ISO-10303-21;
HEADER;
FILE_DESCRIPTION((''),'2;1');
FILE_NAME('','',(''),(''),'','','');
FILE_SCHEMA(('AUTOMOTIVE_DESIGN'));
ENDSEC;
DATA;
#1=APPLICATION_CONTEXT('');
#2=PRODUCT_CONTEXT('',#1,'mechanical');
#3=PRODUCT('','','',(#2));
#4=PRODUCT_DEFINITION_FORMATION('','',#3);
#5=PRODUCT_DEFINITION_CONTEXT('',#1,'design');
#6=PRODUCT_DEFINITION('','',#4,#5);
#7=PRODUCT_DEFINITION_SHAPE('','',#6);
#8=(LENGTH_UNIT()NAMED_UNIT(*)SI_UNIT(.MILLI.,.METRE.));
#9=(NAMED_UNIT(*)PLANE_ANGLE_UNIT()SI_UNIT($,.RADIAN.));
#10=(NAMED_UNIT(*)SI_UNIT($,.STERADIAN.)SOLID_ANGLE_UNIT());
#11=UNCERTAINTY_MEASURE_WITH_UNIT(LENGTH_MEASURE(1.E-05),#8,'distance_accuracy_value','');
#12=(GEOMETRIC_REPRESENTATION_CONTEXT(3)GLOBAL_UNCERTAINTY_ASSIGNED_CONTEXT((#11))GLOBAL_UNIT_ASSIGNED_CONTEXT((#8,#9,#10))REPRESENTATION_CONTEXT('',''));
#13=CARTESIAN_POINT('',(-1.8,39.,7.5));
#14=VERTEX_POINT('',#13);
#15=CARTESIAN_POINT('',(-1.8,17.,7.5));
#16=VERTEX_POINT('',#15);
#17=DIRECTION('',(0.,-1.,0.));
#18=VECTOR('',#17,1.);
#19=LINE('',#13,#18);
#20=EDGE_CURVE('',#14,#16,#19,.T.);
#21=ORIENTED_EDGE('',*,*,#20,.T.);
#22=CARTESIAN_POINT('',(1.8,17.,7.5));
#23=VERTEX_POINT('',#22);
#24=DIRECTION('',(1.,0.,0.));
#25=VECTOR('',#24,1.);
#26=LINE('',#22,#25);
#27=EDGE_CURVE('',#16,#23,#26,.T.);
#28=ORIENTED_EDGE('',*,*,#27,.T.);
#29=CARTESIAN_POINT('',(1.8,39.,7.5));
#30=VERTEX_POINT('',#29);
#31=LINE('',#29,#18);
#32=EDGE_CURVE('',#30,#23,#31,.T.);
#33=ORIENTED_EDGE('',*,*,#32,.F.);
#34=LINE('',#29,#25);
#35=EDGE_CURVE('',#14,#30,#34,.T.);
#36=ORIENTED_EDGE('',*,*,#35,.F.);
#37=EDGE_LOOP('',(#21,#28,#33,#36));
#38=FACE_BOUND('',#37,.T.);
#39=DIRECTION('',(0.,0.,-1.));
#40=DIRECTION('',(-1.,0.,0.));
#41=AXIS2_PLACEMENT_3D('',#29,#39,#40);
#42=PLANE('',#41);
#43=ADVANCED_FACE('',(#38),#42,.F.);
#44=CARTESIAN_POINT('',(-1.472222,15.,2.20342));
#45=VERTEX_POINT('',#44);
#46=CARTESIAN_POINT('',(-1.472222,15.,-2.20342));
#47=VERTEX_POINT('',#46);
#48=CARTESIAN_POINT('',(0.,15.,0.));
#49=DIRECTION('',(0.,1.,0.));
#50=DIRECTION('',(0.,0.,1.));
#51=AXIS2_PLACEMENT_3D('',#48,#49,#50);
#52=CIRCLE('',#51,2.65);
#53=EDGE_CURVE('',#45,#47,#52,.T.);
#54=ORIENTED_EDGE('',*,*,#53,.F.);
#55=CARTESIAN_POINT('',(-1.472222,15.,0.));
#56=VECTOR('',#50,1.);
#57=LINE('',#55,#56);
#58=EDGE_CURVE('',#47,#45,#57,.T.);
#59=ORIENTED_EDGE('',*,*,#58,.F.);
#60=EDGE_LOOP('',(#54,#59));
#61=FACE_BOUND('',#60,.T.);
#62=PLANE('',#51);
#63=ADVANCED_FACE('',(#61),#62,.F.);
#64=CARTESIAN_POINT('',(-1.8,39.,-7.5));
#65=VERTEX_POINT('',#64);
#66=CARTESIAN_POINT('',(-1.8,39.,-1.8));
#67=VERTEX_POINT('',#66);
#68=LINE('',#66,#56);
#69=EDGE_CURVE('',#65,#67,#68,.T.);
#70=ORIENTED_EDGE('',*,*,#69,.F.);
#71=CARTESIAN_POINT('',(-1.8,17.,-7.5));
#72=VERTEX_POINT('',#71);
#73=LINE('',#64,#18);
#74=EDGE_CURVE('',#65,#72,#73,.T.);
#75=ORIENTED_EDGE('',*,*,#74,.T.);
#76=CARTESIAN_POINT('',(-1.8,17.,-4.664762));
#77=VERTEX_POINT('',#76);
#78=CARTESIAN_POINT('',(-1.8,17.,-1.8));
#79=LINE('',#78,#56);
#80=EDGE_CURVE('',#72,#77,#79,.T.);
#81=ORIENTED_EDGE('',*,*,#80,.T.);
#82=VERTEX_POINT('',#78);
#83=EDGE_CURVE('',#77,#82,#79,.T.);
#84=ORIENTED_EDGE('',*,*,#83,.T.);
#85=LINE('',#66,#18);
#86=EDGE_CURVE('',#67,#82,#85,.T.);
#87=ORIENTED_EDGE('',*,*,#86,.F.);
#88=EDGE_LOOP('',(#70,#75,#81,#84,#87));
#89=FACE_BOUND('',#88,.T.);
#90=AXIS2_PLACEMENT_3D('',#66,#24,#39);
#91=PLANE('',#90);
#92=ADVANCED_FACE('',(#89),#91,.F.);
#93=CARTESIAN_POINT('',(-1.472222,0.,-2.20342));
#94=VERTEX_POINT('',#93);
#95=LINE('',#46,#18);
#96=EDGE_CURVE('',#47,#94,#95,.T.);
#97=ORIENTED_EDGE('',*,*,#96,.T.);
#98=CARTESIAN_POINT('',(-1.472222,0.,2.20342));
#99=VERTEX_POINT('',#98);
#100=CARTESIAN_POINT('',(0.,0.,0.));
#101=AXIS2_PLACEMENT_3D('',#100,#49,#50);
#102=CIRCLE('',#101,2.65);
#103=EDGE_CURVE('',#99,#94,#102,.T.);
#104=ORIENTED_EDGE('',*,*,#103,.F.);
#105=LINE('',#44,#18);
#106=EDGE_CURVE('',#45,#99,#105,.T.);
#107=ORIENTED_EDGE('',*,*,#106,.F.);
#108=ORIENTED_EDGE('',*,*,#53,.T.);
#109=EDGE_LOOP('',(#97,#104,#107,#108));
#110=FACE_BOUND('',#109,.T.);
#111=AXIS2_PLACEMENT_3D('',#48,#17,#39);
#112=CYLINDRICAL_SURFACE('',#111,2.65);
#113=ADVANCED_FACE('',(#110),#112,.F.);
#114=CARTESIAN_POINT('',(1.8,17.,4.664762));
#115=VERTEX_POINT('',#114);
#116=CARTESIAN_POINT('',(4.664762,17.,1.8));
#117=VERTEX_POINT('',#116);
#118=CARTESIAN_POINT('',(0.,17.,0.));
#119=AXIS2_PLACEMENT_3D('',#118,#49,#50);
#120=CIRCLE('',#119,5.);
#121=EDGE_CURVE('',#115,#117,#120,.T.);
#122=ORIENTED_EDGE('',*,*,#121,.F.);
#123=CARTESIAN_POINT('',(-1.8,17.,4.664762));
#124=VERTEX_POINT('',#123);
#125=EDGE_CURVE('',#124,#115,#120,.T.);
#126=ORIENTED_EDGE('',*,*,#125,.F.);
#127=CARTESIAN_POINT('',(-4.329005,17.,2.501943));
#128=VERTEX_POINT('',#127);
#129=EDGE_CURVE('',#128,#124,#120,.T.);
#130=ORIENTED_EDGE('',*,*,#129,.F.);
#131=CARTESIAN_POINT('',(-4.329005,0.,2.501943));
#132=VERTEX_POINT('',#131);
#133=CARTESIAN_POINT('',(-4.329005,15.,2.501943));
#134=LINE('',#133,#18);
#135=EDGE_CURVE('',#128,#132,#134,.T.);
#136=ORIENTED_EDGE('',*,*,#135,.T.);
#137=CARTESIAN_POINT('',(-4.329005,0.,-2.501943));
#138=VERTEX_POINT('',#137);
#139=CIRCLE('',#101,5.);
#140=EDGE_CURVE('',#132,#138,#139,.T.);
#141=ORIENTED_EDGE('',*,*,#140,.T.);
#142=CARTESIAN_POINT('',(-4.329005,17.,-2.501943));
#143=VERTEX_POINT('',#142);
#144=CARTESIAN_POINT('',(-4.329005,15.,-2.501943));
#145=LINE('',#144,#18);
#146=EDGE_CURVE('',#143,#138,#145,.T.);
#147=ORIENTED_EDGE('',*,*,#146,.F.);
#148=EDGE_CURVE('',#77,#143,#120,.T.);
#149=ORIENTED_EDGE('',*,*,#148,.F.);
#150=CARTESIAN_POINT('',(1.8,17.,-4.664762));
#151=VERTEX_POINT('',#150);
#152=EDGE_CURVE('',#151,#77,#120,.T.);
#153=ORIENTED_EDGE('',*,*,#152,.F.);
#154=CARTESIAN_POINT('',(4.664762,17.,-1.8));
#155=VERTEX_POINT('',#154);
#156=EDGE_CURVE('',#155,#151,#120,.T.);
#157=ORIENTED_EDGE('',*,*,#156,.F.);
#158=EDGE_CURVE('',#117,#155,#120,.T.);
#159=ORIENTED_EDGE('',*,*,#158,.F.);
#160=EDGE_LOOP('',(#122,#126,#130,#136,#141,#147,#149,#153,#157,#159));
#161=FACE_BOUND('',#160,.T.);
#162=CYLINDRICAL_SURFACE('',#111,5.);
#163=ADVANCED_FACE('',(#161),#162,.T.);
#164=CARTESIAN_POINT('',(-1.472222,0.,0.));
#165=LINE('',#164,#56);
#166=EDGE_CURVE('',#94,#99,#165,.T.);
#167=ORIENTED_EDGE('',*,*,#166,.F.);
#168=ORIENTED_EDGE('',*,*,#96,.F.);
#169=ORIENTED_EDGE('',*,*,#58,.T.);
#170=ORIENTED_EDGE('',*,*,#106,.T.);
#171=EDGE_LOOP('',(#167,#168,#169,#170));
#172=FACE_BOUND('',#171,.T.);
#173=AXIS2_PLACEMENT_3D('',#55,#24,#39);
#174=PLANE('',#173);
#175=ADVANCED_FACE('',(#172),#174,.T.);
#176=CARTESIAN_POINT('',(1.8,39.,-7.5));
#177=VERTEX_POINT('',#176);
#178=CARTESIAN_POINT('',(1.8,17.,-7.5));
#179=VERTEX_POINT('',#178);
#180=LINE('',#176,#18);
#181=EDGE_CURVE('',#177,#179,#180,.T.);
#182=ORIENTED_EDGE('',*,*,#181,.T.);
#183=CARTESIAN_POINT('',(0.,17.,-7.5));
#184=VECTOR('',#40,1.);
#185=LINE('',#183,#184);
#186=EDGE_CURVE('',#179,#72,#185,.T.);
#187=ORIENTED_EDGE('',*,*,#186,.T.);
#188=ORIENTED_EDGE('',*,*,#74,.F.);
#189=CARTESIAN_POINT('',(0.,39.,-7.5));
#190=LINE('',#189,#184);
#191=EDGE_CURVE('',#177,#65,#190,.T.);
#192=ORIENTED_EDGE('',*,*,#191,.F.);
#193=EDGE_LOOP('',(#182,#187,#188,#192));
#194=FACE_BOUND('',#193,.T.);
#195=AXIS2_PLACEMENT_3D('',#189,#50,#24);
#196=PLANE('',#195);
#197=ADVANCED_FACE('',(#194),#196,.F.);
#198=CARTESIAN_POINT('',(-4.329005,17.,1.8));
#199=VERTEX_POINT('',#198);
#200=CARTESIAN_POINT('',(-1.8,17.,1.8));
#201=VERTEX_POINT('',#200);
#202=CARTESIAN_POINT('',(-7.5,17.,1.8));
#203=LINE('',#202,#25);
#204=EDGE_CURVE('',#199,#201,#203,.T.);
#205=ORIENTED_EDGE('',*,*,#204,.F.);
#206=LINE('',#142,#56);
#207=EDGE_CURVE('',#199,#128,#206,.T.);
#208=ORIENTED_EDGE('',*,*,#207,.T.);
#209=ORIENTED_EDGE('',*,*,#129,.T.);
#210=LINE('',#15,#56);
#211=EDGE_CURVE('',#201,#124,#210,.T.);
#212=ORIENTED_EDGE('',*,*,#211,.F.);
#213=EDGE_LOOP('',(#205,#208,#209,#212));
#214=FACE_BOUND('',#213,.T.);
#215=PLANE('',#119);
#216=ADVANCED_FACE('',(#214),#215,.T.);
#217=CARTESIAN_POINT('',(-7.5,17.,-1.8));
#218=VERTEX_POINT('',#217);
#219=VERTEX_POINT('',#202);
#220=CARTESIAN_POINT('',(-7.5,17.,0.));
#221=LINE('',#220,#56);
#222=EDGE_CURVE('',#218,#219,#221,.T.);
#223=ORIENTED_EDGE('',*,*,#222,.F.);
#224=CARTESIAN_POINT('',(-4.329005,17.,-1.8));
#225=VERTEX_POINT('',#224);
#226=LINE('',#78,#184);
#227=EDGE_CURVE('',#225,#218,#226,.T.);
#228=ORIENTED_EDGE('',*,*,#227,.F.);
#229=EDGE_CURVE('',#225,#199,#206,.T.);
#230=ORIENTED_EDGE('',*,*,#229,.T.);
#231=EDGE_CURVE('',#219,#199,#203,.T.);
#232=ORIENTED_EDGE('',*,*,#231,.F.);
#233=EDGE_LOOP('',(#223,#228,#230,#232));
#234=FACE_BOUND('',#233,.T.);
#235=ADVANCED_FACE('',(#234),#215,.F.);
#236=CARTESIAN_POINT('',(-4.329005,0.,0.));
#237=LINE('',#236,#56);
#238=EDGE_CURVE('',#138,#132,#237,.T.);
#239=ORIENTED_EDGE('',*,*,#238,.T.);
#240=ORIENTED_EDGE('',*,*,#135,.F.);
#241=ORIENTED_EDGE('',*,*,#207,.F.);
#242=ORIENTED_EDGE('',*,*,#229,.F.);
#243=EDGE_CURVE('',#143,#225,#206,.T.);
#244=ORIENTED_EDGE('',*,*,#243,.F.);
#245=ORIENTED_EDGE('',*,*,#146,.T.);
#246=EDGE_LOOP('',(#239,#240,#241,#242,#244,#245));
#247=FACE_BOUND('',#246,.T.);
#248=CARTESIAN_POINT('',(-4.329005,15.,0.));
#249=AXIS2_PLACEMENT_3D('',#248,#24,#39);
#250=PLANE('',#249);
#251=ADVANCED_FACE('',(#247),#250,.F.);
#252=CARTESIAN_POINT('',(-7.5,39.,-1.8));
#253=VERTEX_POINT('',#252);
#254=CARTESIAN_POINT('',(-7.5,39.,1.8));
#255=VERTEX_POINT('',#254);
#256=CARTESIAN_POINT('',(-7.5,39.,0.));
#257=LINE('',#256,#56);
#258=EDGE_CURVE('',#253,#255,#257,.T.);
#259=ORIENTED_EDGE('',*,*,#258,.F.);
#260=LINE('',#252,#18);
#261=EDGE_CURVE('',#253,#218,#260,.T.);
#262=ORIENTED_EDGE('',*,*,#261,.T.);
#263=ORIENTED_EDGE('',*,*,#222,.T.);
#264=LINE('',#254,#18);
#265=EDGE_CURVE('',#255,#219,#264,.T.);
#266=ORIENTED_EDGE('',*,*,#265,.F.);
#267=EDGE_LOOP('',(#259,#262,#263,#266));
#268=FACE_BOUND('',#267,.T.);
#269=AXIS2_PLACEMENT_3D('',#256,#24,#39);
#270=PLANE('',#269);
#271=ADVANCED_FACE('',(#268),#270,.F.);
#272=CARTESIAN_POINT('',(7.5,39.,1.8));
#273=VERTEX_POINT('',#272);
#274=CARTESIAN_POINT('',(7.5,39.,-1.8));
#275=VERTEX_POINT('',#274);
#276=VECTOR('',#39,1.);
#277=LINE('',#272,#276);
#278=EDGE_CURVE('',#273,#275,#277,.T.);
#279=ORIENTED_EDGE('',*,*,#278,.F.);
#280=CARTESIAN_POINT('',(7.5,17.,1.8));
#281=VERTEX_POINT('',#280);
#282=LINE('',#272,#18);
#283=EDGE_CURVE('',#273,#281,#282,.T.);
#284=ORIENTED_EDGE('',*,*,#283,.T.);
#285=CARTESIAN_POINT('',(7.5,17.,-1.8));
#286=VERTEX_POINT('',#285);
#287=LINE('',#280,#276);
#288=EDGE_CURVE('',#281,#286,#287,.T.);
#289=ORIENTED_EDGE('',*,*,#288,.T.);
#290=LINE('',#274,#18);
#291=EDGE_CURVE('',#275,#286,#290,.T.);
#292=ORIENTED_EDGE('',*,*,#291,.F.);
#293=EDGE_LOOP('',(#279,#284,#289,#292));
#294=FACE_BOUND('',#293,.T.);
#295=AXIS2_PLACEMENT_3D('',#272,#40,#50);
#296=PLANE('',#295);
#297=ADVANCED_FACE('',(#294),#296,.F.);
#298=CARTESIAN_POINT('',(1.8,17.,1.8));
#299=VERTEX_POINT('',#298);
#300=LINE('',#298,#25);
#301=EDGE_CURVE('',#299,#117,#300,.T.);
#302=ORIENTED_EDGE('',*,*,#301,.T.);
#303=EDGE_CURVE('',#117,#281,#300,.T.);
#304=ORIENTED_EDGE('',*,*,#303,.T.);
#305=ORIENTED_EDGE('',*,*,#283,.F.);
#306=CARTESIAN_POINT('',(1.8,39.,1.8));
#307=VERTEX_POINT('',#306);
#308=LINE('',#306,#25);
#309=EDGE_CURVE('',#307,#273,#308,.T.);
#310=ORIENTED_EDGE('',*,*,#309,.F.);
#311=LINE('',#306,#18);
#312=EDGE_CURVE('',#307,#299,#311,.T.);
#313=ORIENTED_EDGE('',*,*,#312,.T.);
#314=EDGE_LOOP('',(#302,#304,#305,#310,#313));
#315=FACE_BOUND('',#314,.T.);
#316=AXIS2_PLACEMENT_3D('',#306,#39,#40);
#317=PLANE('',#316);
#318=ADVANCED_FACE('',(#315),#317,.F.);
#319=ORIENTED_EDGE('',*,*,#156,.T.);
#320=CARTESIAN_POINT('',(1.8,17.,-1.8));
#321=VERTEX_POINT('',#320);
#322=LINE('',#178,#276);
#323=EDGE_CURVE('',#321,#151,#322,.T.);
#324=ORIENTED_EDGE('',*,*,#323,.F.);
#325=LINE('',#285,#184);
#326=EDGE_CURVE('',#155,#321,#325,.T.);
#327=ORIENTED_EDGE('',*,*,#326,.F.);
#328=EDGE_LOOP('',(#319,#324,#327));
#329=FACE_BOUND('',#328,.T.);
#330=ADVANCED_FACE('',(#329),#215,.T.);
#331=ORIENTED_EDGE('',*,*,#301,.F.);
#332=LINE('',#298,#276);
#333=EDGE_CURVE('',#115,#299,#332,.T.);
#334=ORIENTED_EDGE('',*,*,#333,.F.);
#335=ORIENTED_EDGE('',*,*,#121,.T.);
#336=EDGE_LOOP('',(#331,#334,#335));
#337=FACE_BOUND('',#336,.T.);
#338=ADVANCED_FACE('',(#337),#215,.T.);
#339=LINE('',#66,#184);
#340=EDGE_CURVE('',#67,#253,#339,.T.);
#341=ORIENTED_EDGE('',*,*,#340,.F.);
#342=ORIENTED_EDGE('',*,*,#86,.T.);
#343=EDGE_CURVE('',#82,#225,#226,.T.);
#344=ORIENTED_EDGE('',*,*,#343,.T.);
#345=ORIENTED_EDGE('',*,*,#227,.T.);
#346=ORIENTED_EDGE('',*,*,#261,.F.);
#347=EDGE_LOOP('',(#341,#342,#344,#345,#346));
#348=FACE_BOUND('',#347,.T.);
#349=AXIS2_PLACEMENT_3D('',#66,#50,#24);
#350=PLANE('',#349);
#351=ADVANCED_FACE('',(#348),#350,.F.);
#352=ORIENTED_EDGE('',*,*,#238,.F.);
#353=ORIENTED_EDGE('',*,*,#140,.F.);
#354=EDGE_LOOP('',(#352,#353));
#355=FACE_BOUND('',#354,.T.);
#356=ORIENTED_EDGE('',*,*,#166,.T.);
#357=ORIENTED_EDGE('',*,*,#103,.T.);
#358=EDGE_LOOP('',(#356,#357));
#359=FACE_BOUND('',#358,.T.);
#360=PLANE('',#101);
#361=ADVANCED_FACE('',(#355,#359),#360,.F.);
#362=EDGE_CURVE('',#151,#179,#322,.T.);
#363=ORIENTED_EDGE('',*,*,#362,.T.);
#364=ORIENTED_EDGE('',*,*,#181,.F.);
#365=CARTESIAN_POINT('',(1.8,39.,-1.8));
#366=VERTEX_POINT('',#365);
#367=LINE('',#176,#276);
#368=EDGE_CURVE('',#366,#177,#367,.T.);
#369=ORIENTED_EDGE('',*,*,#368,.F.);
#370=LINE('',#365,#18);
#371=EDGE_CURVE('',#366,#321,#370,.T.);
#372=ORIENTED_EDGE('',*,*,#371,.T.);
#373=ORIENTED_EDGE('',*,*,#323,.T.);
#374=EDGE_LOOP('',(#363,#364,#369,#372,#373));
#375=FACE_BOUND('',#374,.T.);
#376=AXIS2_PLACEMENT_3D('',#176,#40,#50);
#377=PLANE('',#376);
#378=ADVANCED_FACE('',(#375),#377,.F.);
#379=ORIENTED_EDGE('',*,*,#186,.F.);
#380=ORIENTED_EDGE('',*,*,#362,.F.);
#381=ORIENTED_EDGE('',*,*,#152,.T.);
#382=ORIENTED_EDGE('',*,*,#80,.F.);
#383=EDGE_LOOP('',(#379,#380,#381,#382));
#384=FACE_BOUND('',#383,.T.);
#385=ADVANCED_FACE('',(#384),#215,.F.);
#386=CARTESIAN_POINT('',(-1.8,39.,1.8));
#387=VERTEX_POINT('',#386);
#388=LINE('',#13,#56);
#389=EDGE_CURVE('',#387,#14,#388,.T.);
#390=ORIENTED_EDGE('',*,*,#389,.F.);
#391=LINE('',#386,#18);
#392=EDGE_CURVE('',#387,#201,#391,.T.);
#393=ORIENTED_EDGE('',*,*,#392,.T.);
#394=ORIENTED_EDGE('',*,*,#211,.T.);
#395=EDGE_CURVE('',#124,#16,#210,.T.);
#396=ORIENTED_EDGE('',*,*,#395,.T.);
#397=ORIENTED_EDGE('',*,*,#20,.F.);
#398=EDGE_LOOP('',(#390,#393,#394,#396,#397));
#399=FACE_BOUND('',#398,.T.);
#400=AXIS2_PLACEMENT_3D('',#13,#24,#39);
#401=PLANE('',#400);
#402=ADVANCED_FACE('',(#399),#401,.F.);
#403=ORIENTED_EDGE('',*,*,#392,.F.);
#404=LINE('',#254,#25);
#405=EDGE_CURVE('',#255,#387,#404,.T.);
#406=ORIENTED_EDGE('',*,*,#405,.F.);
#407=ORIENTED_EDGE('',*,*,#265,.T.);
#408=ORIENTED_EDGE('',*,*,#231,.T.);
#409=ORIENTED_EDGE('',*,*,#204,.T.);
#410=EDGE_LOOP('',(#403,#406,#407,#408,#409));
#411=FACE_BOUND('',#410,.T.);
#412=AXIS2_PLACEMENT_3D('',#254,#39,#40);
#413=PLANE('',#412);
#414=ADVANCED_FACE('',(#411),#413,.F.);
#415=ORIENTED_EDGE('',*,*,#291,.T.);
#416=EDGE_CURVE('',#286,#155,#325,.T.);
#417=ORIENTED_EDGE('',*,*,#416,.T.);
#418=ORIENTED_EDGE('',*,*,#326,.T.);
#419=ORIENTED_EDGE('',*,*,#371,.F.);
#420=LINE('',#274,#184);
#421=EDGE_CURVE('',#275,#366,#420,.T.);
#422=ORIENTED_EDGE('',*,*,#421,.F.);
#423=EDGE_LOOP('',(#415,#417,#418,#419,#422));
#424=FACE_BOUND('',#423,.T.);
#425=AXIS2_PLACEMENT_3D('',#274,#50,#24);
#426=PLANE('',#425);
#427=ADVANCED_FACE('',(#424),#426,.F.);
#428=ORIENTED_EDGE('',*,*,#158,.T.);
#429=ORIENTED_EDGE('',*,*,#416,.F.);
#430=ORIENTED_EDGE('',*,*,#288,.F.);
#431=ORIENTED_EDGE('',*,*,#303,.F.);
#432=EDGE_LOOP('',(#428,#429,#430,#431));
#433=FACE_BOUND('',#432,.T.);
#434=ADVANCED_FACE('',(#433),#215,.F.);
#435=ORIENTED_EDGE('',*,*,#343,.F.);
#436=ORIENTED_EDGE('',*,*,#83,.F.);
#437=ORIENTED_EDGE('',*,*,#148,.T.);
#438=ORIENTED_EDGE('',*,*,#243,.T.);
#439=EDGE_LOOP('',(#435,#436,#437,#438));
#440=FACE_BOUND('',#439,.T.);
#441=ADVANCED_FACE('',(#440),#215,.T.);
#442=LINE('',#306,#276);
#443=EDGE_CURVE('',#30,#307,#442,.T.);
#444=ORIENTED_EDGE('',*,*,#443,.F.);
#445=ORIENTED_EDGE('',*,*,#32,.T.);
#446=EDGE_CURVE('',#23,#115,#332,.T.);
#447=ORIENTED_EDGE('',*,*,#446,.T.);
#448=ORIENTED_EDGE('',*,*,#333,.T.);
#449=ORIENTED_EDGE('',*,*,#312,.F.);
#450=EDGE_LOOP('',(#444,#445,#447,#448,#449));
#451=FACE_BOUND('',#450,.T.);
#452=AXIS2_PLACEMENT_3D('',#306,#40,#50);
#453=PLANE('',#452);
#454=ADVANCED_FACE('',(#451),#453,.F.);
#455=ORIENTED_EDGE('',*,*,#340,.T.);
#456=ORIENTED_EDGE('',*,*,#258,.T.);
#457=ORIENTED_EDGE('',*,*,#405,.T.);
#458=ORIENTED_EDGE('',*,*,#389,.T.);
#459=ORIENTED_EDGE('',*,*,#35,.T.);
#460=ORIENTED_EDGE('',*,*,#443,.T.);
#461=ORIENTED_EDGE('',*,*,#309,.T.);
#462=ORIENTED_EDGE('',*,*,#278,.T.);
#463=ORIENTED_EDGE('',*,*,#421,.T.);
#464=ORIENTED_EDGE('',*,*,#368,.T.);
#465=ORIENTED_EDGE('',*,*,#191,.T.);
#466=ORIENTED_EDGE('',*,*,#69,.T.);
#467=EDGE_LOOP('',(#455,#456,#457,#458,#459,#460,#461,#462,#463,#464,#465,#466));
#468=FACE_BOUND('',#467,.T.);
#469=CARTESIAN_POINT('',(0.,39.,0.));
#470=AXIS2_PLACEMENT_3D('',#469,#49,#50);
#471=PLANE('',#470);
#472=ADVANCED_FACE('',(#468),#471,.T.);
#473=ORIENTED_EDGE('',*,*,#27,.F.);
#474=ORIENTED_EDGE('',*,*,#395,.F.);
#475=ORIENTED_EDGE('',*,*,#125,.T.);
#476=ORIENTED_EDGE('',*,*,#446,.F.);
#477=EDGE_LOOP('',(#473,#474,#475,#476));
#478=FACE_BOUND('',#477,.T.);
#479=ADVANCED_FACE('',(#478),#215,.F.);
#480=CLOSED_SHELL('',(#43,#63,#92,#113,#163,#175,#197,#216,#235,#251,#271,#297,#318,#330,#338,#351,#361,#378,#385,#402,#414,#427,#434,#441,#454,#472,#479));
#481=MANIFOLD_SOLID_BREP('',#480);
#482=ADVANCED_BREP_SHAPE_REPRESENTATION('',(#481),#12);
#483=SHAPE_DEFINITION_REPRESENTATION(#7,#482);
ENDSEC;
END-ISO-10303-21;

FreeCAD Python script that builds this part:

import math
import FreeCAD as App
import Part
import Sketcher


def add_polygon(sketch, points):
    """Adds a closed chain of lines whose ends are joined by coincident constraints."""
    first, n = sketch.GeometryCount, len(points)
    for a, b in zip(points, points[1:] + points[:1]):
        sketch.addGeometry(Part.LineSegment(App.Vector(*a, 0), App.Vector(*b, 0)), False)
    for i in range(n):
        sketch.addConstraint(Sketcher.Constraint("Coincident", first + i, 2, first + (i + 1) % n, 1))

doc = App.newDocument("Part")
body = doc.addObject("PartDesign::Body", "Body")

# Sketch on XZ plane
sketch1 = doc.addObject("Sketcher::SketchObject", "Sketch")
body.addObject(sketch1)
sketch1.AttachmentSupport = (doc.XZ_Plane, [""])
sketch1.MapMode = "FlatFace"
sketch1.addGeometry([
    Part.LineSegment(App.Vector(-4.3, -2.5, 0), App.Vector(-4.3, 2.5, 0)),
    Part.ArcOfCircle(Part.Circle(App.Vector(0, 0, 0), App.Vector(0, 0, 1), 5), math.radians(-150), math.radians(150)),
    Part.LineSegment(App.Vector(-1.5, 2.2, 0), App.Vector(-1.5, -2.2, 0)),
    Part.ArcOfCircle(Part.Circle(App.Vector(0, 0, 0), App.Vector(0, 0, 1), 2.6), math.radians(-124), math.radians(124)),
], False)
sketch1.addConstraint([
    Sketcher.Constraint("Coincident", 0, 1, 1, 1),
    Sketcher.Constraint("Coincident", 1, 2, 0, 2),
    Sketcher.Constraint("Coincident", 2, 1, 3, 2),
    Sketcher.Constraint("Coincident", 3, 1, 2, 2),
    Sketcher.Constraint("Vertical", 0),
    Sketcher.Constraint("Vertical", 2),
    Sketcher.Constraint("Coincident", 1, 3, -1, 1),
    Sketcher.Constraint("Coincident", 3, 3, -1, 1),
    Sketcher.Constraint("Radius", 1, 5.0),
    Sketcher.Constraint("Radius", 3, 2.65),
    Sketcher.Constraint("DistanceY", 2, 2, 2, 1, 4.406841),
    Sketcher.Constraint("DistanceY", 0, 1, 0, 2, 5.003885),
])
pad1 = doc.addObject("PartDesign::Pad", "Pad")
body.addObject(pad1)
pad1.Profile = sketch1
pad1.Length = 15
pad1.Reversed = True

# Sketch on XZ plane
sketch2 = doc.addObject("Sketcher::SketchObject", "Sketch001")
body.addObject(sketch2)
sketch2.AttachmentSupport = (doc.XZ_Plane, [""])
sketch2.MapMode = "FlatFace"
sketch2.AttachmentOffset = App.Placement(App.Vector(0, 0, -15), App.Rotation())
sketch2.addGeometry([
    Part.LineSegment(App.Vector(-4, -3, 0), App.Vector(-4, 3, 0)),
    Part.ArcOfCircle(Part.Circle(App.Vector(0, 0, 0), App.Vector(0, 0, 1), 5), math.radians(-150), math.radians(150)),
], False)
sketch2.addConstraint([
    Sketcher.Constraint("Coincident", 0, 1, 1, 1),
    Sketcher.Constraint("Coincident", 1, 2, 0, 2),
    Sketcher.Constraint("Vertical", 0),
    Sketcher.Constraint("Coincident", 1, 3, -1, 1),
    Sketcher.Constraint("Radius", 1, 5.0),
    Sketcher.Constraint("DistanceY", 0, 1, 0, 2, 5.003885),
])
pad2 = doc.addObject("PartDesign::Pad", "Pad001")
body.addObject(pad2)
pad2.Profile = sketch2
pad2.Length = 2
pad2.Reversed = True

# Sketch on XZ plane
sketch3 = doc.addObject("Sketcher::SketchObject", "Sketch002")
body.addObject(sketch3)
sketch3.AttachmentSupport = (doc.XZ_Plane, [""])
sketch3.MapMode = "FlatFace"
sketch3.AttachmentOffset = App.Placement(App.Vector(0, 0, -17), App.Rotation())
add_polygon(sketch3, [(-7.5, -1.8), (-7.5, 1.8), (-1.8, 1.8), (-1.8, 7.5), (1.8, 7.5), (1.8, 1.8), (7.5, 1.8), (7.5, -1.8), (1.8, -1.8), (1.8, -7.5), (-1.8, -7.5), (-1.8, -1.8)])  # lines 0-11
sketch3.addConstraint([
    Sketcher.Constraint("Vertical", 0),
    Sketcher.Constraint("Horizontal", 1),
    Sketcher.Constraint("Vertical", 2),
    Sketcher.Constraint("Horizontal", 3),
    Sketcher.Constraint("Vertical", 4),
    Sketcher.Constraint("Horizontal", 5),
    Sketcher.Constraint("Vertical", 6),
    Sketcher.Constraint("Horizontal", 7),
    Sketcher.Constraint("Vertical", 8),
    Sketcher.Constraint("Horizontal", 9),
    Sketcher.Constraint("Vertical", 10),
    Sketcher.Constraint("Horizontal", 11),
    Sketcher.Constraint("Symmetric", 0, 2, 6, 2, -1, 1),
    Sketcher.Constraint("Symmetric", 2, 2, 8, 2, -1, 1),
    Sketcher.Constraint("Symmetric", 4, 2, 10, 2, -1, 1),
    Sketcher.Constraint("Symmetric", 1, 2, 4, 2, -2),
    Sketcher.Constraint("Equal", 9, 0),
    Sketcher.Constraint("Equal", 11, 2),
    Sketcher.Constraint("DistanceX", 1, 1, 1, 2, 5.7),
    Sketcher.Constraint("DistanceX", 3, 1, 3, 2, 3.6),
])
pad3 = doc.addObject("PartDesign::Pad", "Pad002")
body.addObject(pad3)
pad3.Profile = sketch3
pad3.Length = 22
pad3.Reversed = True

doc.recompute()
